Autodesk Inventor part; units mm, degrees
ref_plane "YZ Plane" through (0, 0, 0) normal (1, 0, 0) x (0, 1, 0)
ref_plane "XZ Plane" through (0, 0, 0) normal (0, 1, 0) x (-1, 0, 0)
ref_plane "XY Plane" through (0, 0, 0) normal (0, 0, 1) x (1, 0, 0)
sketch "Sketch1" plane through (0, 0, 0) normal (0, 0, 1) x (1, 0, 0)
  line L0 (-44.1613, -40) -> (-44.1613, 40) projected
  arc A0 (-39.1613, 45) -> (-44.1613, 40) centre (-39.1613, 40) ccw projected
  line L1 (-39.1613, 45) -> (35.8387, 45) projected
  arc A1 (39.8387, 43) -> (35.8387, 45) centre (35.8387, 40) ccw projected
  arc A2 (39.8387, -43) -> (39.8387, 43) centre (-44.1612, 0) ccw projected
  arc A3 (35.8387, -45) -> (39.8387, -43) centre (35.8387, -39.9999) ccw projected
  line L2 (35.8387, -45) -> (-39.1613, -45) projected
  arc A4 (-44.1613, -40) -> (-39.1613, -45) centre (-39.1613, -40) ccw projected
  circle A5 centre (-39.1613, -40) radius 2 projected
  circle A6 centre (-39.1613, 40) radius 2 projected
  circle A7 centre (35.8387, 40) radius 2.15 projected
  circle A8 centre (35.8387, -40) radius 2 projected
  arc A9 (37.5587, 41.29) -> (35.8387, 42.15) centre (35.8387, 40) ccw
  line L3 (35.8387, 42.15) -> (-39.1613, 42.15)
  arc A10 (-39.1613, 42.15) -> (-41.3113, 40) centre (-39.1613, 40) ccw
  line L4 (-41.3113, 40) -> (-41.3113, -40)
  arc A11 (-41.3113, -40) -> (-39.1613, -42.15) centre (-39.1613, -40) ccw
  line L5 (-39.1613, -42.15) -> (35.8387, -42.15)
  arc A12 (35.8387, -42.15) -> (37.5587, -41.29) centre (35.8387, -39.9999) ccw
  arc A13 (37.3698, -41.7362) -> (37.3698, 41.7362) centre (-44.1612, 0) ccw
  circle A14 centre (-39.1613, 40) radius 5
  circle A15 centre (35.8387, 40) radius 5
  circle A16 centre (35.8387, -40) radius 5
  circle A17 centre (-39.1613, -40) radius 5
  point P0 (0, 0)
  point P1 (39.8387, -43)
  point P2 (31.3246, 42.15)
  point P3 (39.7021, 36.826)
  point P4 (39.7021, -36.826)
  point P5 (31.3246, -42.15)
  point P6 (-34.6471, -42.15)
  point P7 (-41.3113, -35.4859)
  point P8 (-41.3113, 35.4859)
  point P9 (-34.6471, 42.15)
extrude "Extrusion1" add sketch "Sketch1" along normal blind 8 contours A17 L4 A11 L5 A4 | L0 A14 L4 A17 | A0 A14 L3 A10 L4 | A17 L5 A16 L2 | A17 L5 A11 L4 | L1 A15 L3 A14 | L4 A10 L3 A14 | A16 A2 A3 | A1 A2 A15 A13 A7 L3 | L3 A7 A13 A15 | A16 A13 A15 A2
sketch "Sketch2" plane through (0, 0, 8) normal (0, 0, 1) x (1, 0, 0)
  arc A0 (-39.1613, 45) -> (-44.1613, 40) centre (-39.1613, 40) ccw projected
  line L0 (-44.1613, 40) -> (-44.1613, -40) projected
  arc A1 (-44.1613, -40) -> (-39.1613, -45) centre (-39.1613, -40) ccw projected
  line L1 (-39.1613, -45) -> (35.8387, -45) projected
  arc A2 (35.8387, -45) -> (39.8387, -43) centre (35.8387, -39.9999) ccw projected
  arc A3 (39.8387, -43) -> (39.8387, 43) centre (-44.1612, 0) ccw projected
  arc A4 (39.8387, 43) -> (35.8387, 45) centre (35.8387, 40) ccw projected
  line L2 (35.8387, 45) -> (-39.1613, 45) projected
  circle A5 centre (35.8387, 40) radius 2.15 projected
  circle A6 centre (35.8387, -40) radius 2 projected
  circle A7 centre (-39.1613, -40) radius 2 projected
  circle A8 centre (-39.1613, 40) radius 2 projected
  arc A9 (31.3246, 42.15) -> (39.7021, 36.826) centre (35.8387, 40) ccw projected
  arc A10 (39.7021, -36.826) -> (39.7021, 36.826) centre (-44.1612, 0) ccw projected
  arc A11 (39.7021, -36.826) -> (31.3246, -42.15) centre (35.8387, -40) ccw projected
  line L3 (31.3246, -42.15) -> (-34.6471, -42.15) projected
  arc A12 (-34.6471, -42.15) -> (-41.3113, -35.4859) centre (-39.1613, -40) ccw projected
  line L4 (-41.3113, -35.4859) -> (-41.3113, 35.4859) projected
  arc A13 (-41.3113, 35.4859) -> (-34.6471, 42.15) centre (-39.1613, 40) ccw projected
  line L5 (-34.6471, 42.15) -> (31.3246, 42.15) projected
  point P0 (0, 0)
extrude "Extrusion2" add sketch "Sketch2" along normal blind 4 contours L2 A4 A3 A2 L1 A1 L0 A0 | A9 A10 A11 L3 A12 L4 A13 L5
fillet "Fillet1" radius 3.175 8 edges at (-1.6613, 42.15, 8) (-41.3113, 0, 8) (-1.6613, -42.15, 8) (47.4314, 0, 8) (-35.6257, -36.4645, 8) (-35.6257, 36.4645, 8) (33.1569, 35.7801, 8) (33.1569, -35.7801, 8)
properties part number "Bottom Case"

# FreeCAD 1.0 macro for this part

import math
import FreeCAD as App
import Part
import Sketcher

V = App.Vector


def edges_at(feature, points):
    """Names of the edges that pass closest to the given points."""
    edges = feature.Shape.Edges
    near = lambda p: min(range(len(edges)), key=lambda i: edges[i].distToShape(Part.Vertex(*p))[0])
    return sorted({f"Edge{near(p) + 1}" for p in points})

doc = App.newDocument("Part")
body = doc.addObject("PartDesign::Body", "Body")

# Sketch on XY plane
sketch1 = body.newObject("Sketcher::SketchObject", "Sketch")
sketch1.AttachmentSupport = (doc.getObject("XY_Plane"), [""])
sketch1.MapMode = "FlatFace"
sketch1.addGeometry(Part.ArcOfCircle(Part.Circle(V(-39.2, -40, 0), V(0, 0, 1), 5), math.radians(180), math.radians(270)), False)
sketch1.addGeometry(Part.LineSegment(V(-39.2, -45, 0), V(35.8, -45, 0)), False)
sketch1.addGeometry(Part.ArcOfCircle(Part.Circle(V(35.8, -40, 0), V(0, 0, 1), 5), math.radians(-90), math.radians(-37)), False)
sketch1.addGeometry(Part.ArcOfCircle(Part.Circle(V(-44.2, 0, 0), V(0, 0, 1), 94.4), math.radians(-27), math.radians(27)), False)
sketch1.addGeometry(Part.ArcOfCircle(Part.Circle(V(35.8, 40, 0), V(0, 0, 1), 5), math.radians(37), math.radians(90)), False)
sketch1.addGeometry(Part.LineSegment(V(35.8, 45, 0), V(-39.2, 45, 0)), False)
sketch1.addGeometry(Part.ArcOfCircle(Part.Circle(V(-39.2, 40, 0), V(0, 0, 1), 5), math.radians(90), math.radians(180)), False)
sketch1.addGeometry(Part.LineSegment(V(-44.2, 40, 0), V(-44.2, -40, 0)), False)
sketch1.addGeometry(Part.LineSegment(V(-41.3, -35.5, 0), V(-41.3, 35.5, 0)), False)
sketch1.addGeometry(Part.ArcOfCircle(Part.Circle(V(-39.2, 40, 0), V(0, 0, 1), 5), math.radians(-115), math.radians(25)), False)
sketch1.addGeometry(Part.LineSegment(V(-34.6, 42.1, 0), V(31.3, 42.1, 0)), False)
sketch1.addGeometry(Part.ArcOfCircle(Part.Circle(V(35.8, 40, 0), V(0, 0, 1), 5), math.radians(155), math.radians(321)), False)
sketch1.addGeometry(Part.ArcOfCircle(Part.Circle(V(-44.2, 0, 0), V(0, 0, 1), 91.6), math.radians(-24), math.radians(24)), False)
sketch1.addGeometry(Part.ArcOfCircle(Part.Circle(V(35.8, -40, 0), V(0, 0, 1), 5), math.radians(39), math.radians(205)), False)
sketch1.addGeometry(Part.LineSegment(V(31.3, -42.1, 0), V(-34.6, -42.1, 0)), False)
sketch1.addGeometry(Part.ArcOfCircle(Part.Circle(V(-39.2, -40, 0), V(0, 0, 1), 5), math.radians(-25), math.radians(115)), False)
sketch1.addGeometry(Part.Circle(V(-39.2, -40, 0), V(0, 0, 1), 2), False)
sketch1.addGeometry(Part.Circle(V(35.8, -40, 0), V(0, 0, 1), 2), False)
sketch1.addGeometry(Part.Circle(V(-39.2, 40, 0), V(0, 0, 1), 2), False)
sketch1.addGeometry(Part.Circle(V(35.8, 40, 0), V(0, 0, 1), 2.1), False)
sketch1.addConstraint(Sketcher.Constraint("Tangent", 0, 2, 1, 1))
sketch1.addConstraint(Sketcher.Constraint("Tangent", 1, 2, 2, 1))
sketch1.addConstraint(Sketcher.Constraint("Coincident", 2, 2, 3, 1))
sketch1.addConstraint(Sketcher.Constraint("Coincident", 3, 2, 4, 1))
sketch1.addConstraint(Sketcher.Constraint("Tangent", 4, 2, 5, 1))
sketch1.addConstraint(Sketcher.Constraint("Tangent", 5, 2, 6, 1))
sketch1.addConstraint(Sketcher.Constraint("Tangent", 6, 2, 7, 1))
sketch1.addConstraint(Sketcher.Constraint("Tangent", 7, 2, 0, 1))
sketch1.addConstraint(Sketcher.Constraint("Coincident", 8, 2, 9, 1))
sketch1.addConstraint(Sketcher.Constraint("Coincident", 9, 2, 10, 1))
sketch1.addConstraint(Sketcher.Constraint("Coincident", 10, 2, 11, 1))
sketch1.addConstraint(Sketcher.Constraint("Coincident", 11, 2, 12, 2))
sketch1.addConstraint(Sketcher.Constraint("Coincident", 12, 1, 13, 1))
sketch1.addConstraint(Sketcher.Constraint("Coincident", 13, 2, 14, 1))
sketch1.addConstraint(Sketcher.Constraint("Coincident", 14, 2, 15, 1))
sketch1.addConstraint(Sketcher.Constraint("Coincident", 15, 2, 8, 1))
sketch1.addConstraint(Sketcher.Constraint("Horizontal", 1))
sketch1.addConstraint(Sketcher.Constraint("Horizontal", 5))
sketch1.addConstraint(Sketcher.Constraint("Vertical", 7))
sketch1.addConstraint(Sketcher.Constraint("Vertical", 8))
sketch1.addConstraint(Sketcher.Constraint("Horizontal", 10))
sketch1.addConstraint(Sketcher.Constraint("Horizontal", 14))
sketch1.addConstraint(Sketcher.Constraint("Coincident", 9, 3, 6, 3))
sketch1.addConstraint(Sketcher.Constraint("Coincident", 11, 3, 4, 3))
sketch1.addConstraint(Sketcher.Constraint("Coincident", 12, 3, 3, 3))
sketch1.addConstraint(Sketcher.Constraint("Coincident", 13, 3, 2, 3))
sketch1.addConstraint(Sketcher.Constraint("Coincident", 15, 3, 0, 3))
sketch1.addConstraint(Sketcher.Constraint("Coincident", 16, 3, 0, 3))
sketch1.addConstraint(Sketcher.Constraint("Coincident", 17, 3, 2, 3))
sketch1.addConstraint(Sketcher.Constraint("Coincident", 18, 3, 6, 3))
sketch1.addConstraint(Sketcher.Constraint("Coincident", 19, 3, 4, 3))
sketch1.addConstraint(Sketcher.Constraint("Equal", 0, 2))
sketch1.addConstraint(Sketcher.Constraint("Equal", 2, 4))
sketch1.addConstraint(Sketcher.Constraint("Equal", 4, 6))
sketch1.addConstraint(Sketcher.Constraint("Equal", 6, 9))
sketch1.addConstraint(Sketcher.Constraint("Equal", 9, 11))
sketch1.addConstraint(Sketcher.Constraint("Equal", 11, 13))
sketch1.addConstraint(Sketcher.Constraint("Equal", 13, 15))
sketch1.addConstraint(Sketcher.Constraint("Equal", 16, 17))
sketch1.addConstraint(Sketcher.Constraint("Equal", 17, 18))
sketch1.addConstraint(Sketcher.Constraint("Symmetric", 2, 3, 4, 3, -1))
sketch1.addConstraint(Sketcher.Constraint("PointOnObject", 3, 3, -1))
sketch1.addConstraint(Sketcher.Constraint("Vertical", 12, 3, 6, 2))
sketch1.addConstraint(Sketcher.Constraint("Vertical", 10, 2, 13, 2))
sketch1.addConstraint(Sketcher.Constraint("Diameter", 16, 4.0))
sketch1.addConstraint(Sketcher.Constraint("Radius", 0, 5.0))
sketch1.addConstraint(Sketcher.Constraint("Diameter", 19, 4.3))
sketch1.addConstraint(Sketcher.Constraint("DistanceX", 1, 1, 1, 2, 75.0))
sketch1.addConstraint(Sketcher.Constraint("DistanceY", 7, 2, 7, 1, 80.0))
sketch1.addConstraint(Sketcher.Constraint("DistanceY", 2, 2, -1, 1, 43.0))
sketch1.addConstraint(Sketcher.Constraint("Radius", 12, 91.5927))
sketch1.addConstraint(Sketcher.Constraint("DistanceY", -1, 1, 9, 2, 42.15))
sketch1.addConstraint(Sketcher.Constraint("DistanceX", 8, 2, 6, 3, 2.15))
sketch1.addConstraint(Sketcher.Constraint("DistanceX", 0, 3, -1, 1, 39.1613))
pad1 = body.newObject("PartDesign::Pad", "Pad")
pad1.Profile = sketch1
pad1.Length = 8

# Sketch on XY plane
sketch2 = body.newObject("Sketcher::SketchObject", "Sketch001")
sketch2.AttachmentSupport = (doc.getObject("XY_Plane"), [""])
sketch2.MapMode = "FlatFace"
sketch2.AttachmentOffset = App.Placement(V(0, 0, 8), App.Rotation())
sketch2.addGeometry(Part.LineSegment(V(35.8, 45, 0), V(-39.2, 45, 0)), False)
sketch2.addGeometry(Part.ArcOfCircle(Part.Circle(V(-39.2, 40, 0), V(0, 0, 1), 5), math.radians(90), math.radians(180)), False)
sketch2.addGeometry(Part.LineSegment(V(-44.2, 40, 0), V(-44.2, -40, 0)), False)
sketch2.addGeometry(Part.ArcOfCircle(Part.Circle(V(-39.2, -40, 0), V(0, 0, 1), 5), math.radians(180), math.radians(270)), False)
sketch2.addGeometry(Part.LineSegment(V(-39.2, -45, 0), V(35.8, -45, 0)), False)
sketch2.addGeometry(Part.ArcOfCircle(Part.Circle(V(35.8, -40, 0), V(0, 0, 1), 5), math.radians(-90), math.radians(-37)), False)
sketch2.addGeometry(Part.ArcOfCircle(Part.Circle(V(-44.2, 0, 0), V(0, 0, 1), 94.4), math.radians(-27), math.radians(27)), False)
sketch2.addGeometry(Part.ArcOfCircle(Part.Circle(V(35.8, 40, 0), V(0, 0, 1), 5), math.radians(37), math.radians(90)), False)
sketch2.addGeometry(Part.Circle(V(-39.2, -40, 0), V(0, 0, 1), 2), False)
sketch2.addGeometry(Part.Circle(V(35.8, -40, 0), V(0, 0, 1), 2), False)
sketch2.addGeometry(Part.Circle(V(-39.2, 40, 0), V(0, 0, 1), 2), False)
sketch2.addGeometry(Part.Circle(V(35.8, 40, 0), V(0, 0, 1), 2.1), False)
sketch2.addConstraint(Sketcher.Constraint("Tangent", 0, 2, 1, 1))
sketch2.addConstraint(Sketcher.Constraint("Tangent", 1, 2, 2, 1))
sketch2.addConstraint(Sketcher.Constraint("Tangent", 2, 2, 3, 1))
sketch2.addConstraint(Sketcher.Constraint("Tangent", 3, 2, 4, 1))
sketch2.addConstraint(Sketcher.Constraint("Tangent", 4, 2, 5, 1))
sketch2.addConstraint(Sketcher.Constraint("Coincident", 5, 2, 6, 1))
sketch2.addConstraint(Sketcher.Constraint("Coincident", 6, 2, 7, 1))
sketch2.addConstraint(Sketcher.Constraint("Tangent", 7, 2, 0, 1))
sketch2.addConstraint(Sketcher.Constraint("Horizontal", 0))
sketch2.addConstraint(Sketcher.Constraint("Vertical", 2))
sketch2.addConstraint(Sketcher.Constraint("Horizontal", 4))
sketch2.addConstraint(Sketcher.Constraint("Coincident", 8, 3, 3, 3))
sketch2.addConstraint(Sketcher.Constraint("Coincident", 9, 3, 5, 3))
sketch2.addConstraint(Sketcher.Constraint("Coincident", 10, 3, 1, 3))
sketch2.addConstraint(Sketcher.Constraint("Coincident", 11, 3, 7, 3))
sketch2.addConstraint(Sketcher.Constraint("Equal", 1, 3))
sketch2.addConstraint(Sketcher.Constraint("Equal", 3, 5))
sketch2.addConstraint(Sketcher.Constraint("Equal", 5, 7))
sketch2.addConstraint(Sketcher.Constraint("Equal", 8, 9))
sketch2.addConstraint(Sketcher.Constraint("Equal", 9, 10))
sketch2.addConstraint(Sketcher.Constraint("Symmetric", 5, 3, 7, 3, -1))
sketch2.addConstraint(Sketcher.Constraint("PointOnObject", 6, 3, -1))
sketch2.addConstraint(Sketcher.Constraint("Vertical", 6, 3, 1, 2))
sketch2.addConstraint(Sketcher.Constraint("Diameter", 8, 4.0))
sketch2.addConstraint(Sketcher.Constraint("Radius", 1, 5.0))
sketch2.addConstraint(Sketcher.Constraint("Diameter", 11, 4.3))
sketch2.addConstraint(Sketcher.Constraint("DistanceX", 0, 2, 0, 1, 75.0))
sketch2.addConstraint(Sketcher.Constraint("DistanceY", 2, 2, 2, 1, 80.0))
sketch2.addConstraint(Sketcher.Constraint("DistanceY", 5, 2, -1, 1, 43.0))
sketch2.addConstraint(Sketcher.Constraint("DistanceX", 1, 3, -1, 1, 39.1613))
pad2 = body.newObject("PartDesign::Pad", "Pad001")
pad2.Profile = sketch2
pad2.Length = 4
doc.recompute()

fillet = body.newObject("PartDesign::Fillet", "Fillet")
fillet.Base = (pad2, edges_at(pad2, [
    (-1.661, 42.15, 8),
    (-41.311, 0, 8),
    (-1.661, -42.15, 8),
    (47.431, 0, 8),
    (-35.626, -36.465, 8),
    (-35.626, 36.465, 8),
    (33.157, 35.78, 8),
    (33.157, -35.78, 8),
]))
fillet.Radius = 3.175

doc.recompute()
